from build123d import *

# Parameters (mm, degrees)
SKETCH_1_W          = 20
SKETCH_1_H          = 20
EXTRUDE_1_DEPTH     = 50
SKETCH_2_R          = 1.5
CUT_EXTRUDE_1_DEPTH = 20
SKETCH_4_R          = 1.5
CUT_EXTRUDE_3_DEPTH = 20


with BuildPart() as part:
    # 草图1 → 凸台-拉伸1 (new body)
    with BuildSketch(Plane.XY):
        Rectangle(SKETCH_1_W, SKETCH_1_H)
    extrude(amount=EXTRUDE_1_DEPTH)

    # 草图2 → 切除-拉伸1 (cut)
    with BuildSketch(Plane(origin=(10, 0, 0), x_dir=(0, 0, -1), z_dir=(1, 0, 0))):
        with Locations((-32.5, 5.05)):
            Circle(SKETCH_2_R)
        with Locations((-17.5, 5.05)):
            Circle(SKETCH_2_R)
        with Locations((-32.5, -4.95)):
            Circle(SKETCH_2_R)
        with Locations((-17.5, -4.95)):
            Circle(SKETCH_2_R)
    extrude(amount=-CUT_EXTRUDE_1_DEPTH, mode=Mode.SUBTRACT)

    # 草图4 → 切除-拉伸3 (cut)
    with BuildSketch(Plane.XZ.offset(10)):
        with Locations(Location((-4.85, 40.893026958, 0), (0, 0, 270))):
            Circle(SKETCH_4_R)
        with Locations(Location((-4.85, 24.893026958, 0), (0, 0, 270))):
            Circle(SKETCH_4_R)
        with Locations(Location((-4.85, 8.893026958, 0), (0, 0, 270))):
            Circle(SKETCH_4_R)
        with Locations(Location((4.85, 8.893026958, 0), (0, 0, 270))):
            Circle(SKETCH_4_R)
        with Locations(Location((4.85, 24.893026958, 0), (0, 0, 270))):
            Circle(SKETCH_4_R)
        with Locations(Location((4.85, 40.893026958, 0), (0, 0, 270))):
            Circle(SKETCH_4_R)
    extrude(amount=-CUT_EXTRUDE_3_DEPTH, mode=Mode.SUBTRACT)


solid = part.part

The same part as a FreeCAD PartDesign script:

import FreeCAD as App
import Part
import Sketcher

doc = App.newDocument("Part")
params = doc.addObject("Spreadsheet::Sheet", "Params")
for row, (alias, value) in enumerate([
    ("sketch1_width", "20 mm"),
    ("pad1_length", "50 mm"),
    ("sketch2_diameter", "3 mm"),
    ("pocket1_length", "20 mm"),
    ("sketch3_diameter", "3 mm"),
    ("pocket2_length", "20 mm"),
], start=1):
    params.set(f"A{row}", alias)
    params.set(f"B{row}", "=" + value)
    params.setAlias(f"B{row}", alias)

body = doc.addObject("PartDesign::Body", "Body")

sketch1 = body.newObject("Sketcher::SketchObject", "Sketch")
sketch1.AttachmentSupport = (doc.getObject("XY_Plane"), [""])
sketch1.MapMode = "FlatFace"
sketch1.addGeometry([
    Part.LineSegment(App.Vector(-10, 10, 0), App.Vector(-10, -10, 0)),
    Part.LineSegment(App.Vector(-10, -10, 0), App.Vector(10, -10, 0)),
    Part.LineSegment(App.Vector(10, -10, 0), App.Vector(10, 10, 0)),
    Part.LineSegment(App.Vector(10, 10, 0), App.Vector(-10, 10, 0)),
], False)
sketch1.addConstraint([
    Sketcher.Constraint("Coincident", 0, 2, 1, 1),
    Sketcher.Constraint("Coincident", 1, 2, 2, 1),
    Sketcher.Constraint("Coincident", 2, 2, 3, 1),
    Sketcher.Constraint("Coincident", 3, 2, 0, 1),
    Sketcher.Constraint("Vertical", 0),
    Sketcher.Constraint("Horizontal", 1),
    Sketcher.Constraint("Vertical", 2),
    Sketcher.Constraint("Horizontal", 3),
    Sketcher.Constraint("Symmetric", 0, 2, 2, 2, -1, 1),
    Sketcher.Constraint("Equal", 3, 0),
    Sketcher.Constraint("DistanceX", 1, 1, 1, 2, 20.0),
])
sketch1.setExpression("Constraints[10]", "Params.sketch1_width")
pad1 = body.newObject("PartDesign::Pad", "Pad")
pad1.Profile = sketch1
pad1.setExpression("Length", "Params.pad1_length")

sketch2 = body.newObject("Sketcher::SketchObject", "Sketch001")
sketch2.AttachmentSupport = (doc.getObject("YZ_Plane"), [""])
sketch2.MapMode = "FlatFace"
sketch2.AttachmentOffset = App.Placement(App.Vector(0, 0, 10), App.Rotation())
sketch2.addGeometry([
    Part.Circle(App.Vector(5, 32.5, 0), App.Vector(0, 0, 1), 1.5),
    Part.Circle(App.Vector(5, 17.5, 0), App.Vector(0, 0, 1), 1.5),
    Part.Circle(App.Vector(-5, 32.5, 0), App.Vector(0, 0, 1), 1.5),
    Part.Circle(App.Vector(-5, 17.5, 0), App.Vector(0, 0, 1), 1.5),
], False)
sketch2.addConstraint([
    Sketcher.Constraint("Equal", 0, 1),
    Sketcher.Constraint("Equal", 1, 2),
    Sketcher.Constraint("Equal", 2, 3),
    Sketcher.Constraint("Horizontal", 0, 3, 2, 3),
    Sketcher.Constraint("Horizontal", 1, 3, 3, 3),
    Sketcher.Constraint("Vertical", 0, 3, 1, 3),
    Sketcher.Constraint("Vertical", 2, 3, 3, 3),
    Sketcher.Constraint("Diameter", 0, 3.0),
    Sketcher.Constraint("DistanceY", 1, 3, 0, 3, 15.0),
    Sketcher.Constraint("DistanceX", 2, 3, 0, 3, 10.0),
    Sketcher.Constraint("DistanceY", -1, 1, 0, 3, 32.5),
    Sketcher.Constraint("DistanceX", -1, 1, 0, 3, 5.05),
])
sketch2.setExpression("Constraints[7]", "Params.sketch2_diameter")
pocket1 = body.newObject("PartDesign::Pocket", "Pocket")
pocket1.Profile = sketch2
pocket1.setExpression("Length", "Params.pocket1_length")

sketch3 = body.newObject("Sketcher::SketchObject", "Sketch002")
sketch3.AttachmentSupport = (doc.getObject("XZ_Plane"), [""])
sketch3.MapMode = "FlatFace"
sketch3.AttachmentOffset = App.Placement(App.Vector(0, 0, 10), App.Rotation())
sketch3.addGeometry([
    Part.Circle(App.Vector(-4.8, 40.9, 0), App.Vector(0, 0, 1), 1.5),
    Part.Circle(App.Vector(-4.8, 24.9, 0), App.Vector(0, 0, 1), 1.5),
    Part.Circle(App.Vector(-4.8, 8.9, 0), App.Vector(0, 0, 1), 1.5),
    Part.Circle(App.Vector(4.8, 8.9, 0), App.Vector(0, 0, 1), 1.5),
    Part.Circle(App.Vector(4.8, 24.9, 0), App.Vector(0, 0, 1), 1.5),
    Part.Circle(App.Vector(4.8, 40.9, 0), App.Vector(0, 0, 1), 1.5),
], False)
sketch3.addConstraint([
    Sketcher.Constraint("Equal", 0, 1),
    Sketcher.Constraint("Equal", 1, 2),
    Sketcher.Constraint("Equal", 2, 3),
    Sketcher.Constraint("Equal", 3, 4),
    Sketcher.Constraint("Equal", 4, 5),
    Sketcher.Constraint("Symmetric", 2, 3, 3, 3, -2),
    Sketcher.Constraint("Symmetric", 1, 3, 4, 3, -2),
    Sketcher.Constraint("Symmetric", 0, 3, 5, 3, -2),
    Sketcher.Constraint("Vertical", 0, 3, 1, 3),
    Sketcher.Constraint("Vertical", 1, 3, 2, 3),
    Sketcher.Constraint("Diameter", 0, 3.0),
    Sketcher.Constraint("DistanceY", 1, 3, 0, 3, 16.0),
    Sketcher.Constraint("DistanceY", 2, 3, 1, 3, 16.0),
    Sketcher.Constraint("DistanceX", 2, 3, 3, 3, 9.7),
    Sketcher.Constraint("DistanceY", -1, 1, 0, 3, 40.893027),
])
sketch3.setExpression("Constraints[10]", "Params.sketch3_diameter")
pocket2 = body.newObject("PartDesign::Pocket", "Pocket001")
pocket2.Profile = sketch3
pocket2.setExpression("Length", "Params.pocket2_length")

doc.recompute()
